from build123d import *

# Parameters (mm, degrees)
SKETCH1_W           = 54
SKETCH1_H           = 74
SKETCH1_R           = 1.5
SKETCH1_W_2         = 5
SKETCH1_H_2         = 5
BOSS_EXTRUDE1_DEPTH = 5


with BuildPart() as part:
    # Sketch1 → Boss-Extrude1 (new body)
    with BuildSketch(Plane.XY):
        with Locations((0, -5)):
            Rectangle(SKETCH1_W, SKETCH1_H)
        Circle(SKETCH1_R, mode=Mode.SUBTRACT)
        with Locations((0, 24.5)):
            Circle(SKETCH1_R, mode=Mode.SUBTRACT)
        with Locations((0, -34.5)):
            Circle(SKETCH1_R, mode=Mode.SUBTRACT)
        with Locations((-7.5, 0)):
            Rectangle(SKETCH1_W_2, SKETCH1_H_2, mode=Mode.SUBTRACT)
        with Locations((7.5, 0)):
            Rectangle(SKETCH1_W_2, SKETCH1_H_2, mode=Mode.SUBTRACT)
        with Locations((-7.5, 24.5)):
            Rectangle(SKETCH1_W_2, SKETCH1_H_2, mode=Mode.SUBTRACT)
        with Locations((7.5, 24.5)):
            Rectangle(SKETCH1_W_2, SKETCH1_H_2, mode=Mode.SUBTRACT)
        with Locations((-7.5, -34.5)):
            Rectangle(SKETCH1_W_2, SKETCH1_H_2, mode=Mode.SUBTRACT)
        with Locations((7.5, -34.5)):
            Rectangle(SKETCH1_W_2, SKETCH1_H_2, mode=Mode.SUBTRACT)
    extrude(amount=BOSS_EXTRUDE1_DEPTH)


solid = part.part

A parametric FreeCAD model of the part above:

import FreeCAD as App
import Part
import Sketcher
from FreeCAD import Vector


def add_polygon(sketch, points):
    """Adds a closed chain of lines whose ends are joined by coincident constraints."""
    first, n = sketch.GeometryCount, len(points)
    for a, b in zip(points, points[1:] + points[:1]):
        sketch.addGeometry(Part.LineSegment(App.Vector(*a, 0), App.Vector(*b, 0)), False)
    for i in range(n):
        sketch.addConstraint(Sketcher.Constraint("Coincident", first + i, 2, first + (i + 1) % n, 1))

doc = App.newDocument("Part")
params = doc.addObject("Spreadsheet::Sheet", "Params")
for row, (alias, value) in enumerate([
    ("sketch1_diameter", "3 mm"),
    ("sketch1_width", "54 mm"),
    ("sketch1_width2", "5 mm"),
    ("sketch1_height", "74 mm"),
    ("pad1_length", "5 mm"),
], start=1):
    params.set(f"A{row}", alias)
    params.set(f"B{row}", "=" + value)
    params.setAlias(f"B{row}", alias)

body = doc.addObject("PartDesign::Body", "Body")

# Sketch on XY plane
sketch1 = body.newObject("Sketcher::SketchObject", "Sketch")
sketch1.AttachmentSupport = (doc.getObject("XY_Plane"), [""])
sketch1.MapMode = "FlatFace"
add_polygon(sketch1, [(-27, 32), (-27, -42), (27, -42), (27, 32)])  # lines 0-3
add_polygon(sketch1, [(-5, -37), (-10, -37), (-10, -32), (-5, -32)])  # lines 4-7
sketch1.addGeometry(Part.Circle(Vector(0, -34.5, 0), Vector(0, 0, 1), 1.5), False)  # 8
add_polygon(sketch1, [(10, -37), (5, -37), (5, -32), (10, -32)])  # lines 9-12
add_polygon(sketch1, [(-5, -2.5), (-10, -2.5), (-10, 2.5), (-5, 2.5)])  # lines 13-16
add_polygon(sketch1, [(-5, 22), (-10, 22), (-10, 27), (-5, 27)])  # lines 17-20
sketch1.addGeometry(Part.Circle(Vector(0, 0, 0), Vector(0, 0, 1), 1.5), False)  # 21
add_polygon(sketch1, [(10, -2.5), (5, -2.5), (5, 2.5), (10, 2.5)])  # lines 22-25
sketch1.addGeometry(Part.Circle(Vector(0, 24.5, 0), Vector(0, 0, 1), 1.5), False)  # 26
add_polygon(sketch1, [(10, 22), (5, 22), (5, 27), (10, 27)])  # lines 27-30
sketch1.addConstraint([
    Sketcher.Constraint("Vertical", 0),
    Sketcher.Constraint("Horizontal", 1),
    Sketcher.Constraint("Vertical", 2),
    Sketcher.Constraint("Horizontal", 3),
    Sketcher.Constraint("Horizontal", 4),
    Sketcher.Constraint("Vertical", 5),
    Sketcher.Constraint("Horizontal", 6),
    Sketcher.Constraint("Vertical", 7),
    Sketcher.Constraint("Horizontal", 9),
    Sketcher.Constraint("Vertical", 10),
    Sketcher.Constraint("Horizontal", 11),
    Sketcher.Constraint("Vertical", 12),
    Sketcher.Constraint("Horizontal", 13),
    Sketcher.Constraint("Vertical", 14),
    Sketcher.Constraint("Horizontal", 15),
    Sketcher.Constraint("Vertical", 16),
    Sketcher.Constraint("Horizontal", 17),
    Sketcher.Constraint("Vertical", 18),
    Sketcher.Constraint("Horizontal", 19),
    Sketcher.Constraint("Vertical", 20),
    Sketcher.Constraint("Horizontal", 22),
    Sketcher.Constraint("Vertical", 23),
    Sketcher.Constraint("Horizontal", 24),
    Sketcher.Constraint("Vertical", 25),
    Sketcher.Constraint("Horizontal", 27),
    Sketcher.Constraint("Vertical", 28),
    Sketcher.Constraint("Horizontal", 29),
    Sketcher.Constraint("Vertical", 30),
    Sketcher.Constraint("Coincident", 21, 3, -1, 1),
    Sketcher.Constraint("Equal", 8, 21),
    Sketcher.Constraint("Equal", 21, 26),
    Sketcher.Constraint("Symmetric", 15, 2, 22, 2, -1, 1),
    Sketcher.Constraint("Symmetric", 13, 2, 24, 2, -1, 1),
    Sketcher.Constraint("Symmetric", 7, 2, 9, 2, -2),
    Sketcher.Constraint("Symmetric", 5, 2, 11, 2, -2),
    Sketcher.Constraint("Symmetric", 20, 2, 27, 2, -2),
    Sketcher.Constraint("Symmetric", 18, 2, 29, 2, -2),
    Sketcher.Constraint("PointOnObject", 8, 3, -2),
    Sketcher.Constraint("PointOnObject", 26, 3, -2),
    Sketcher.Constraint("Horizontal", 16, 2, 22, 2),
    Sketcher.Constraint("Vertical", 5, 2, 13, 2),
    Sketcher.Constraint("Vertical", 7, 2, 15, 2),
    Sketcher.Constraint("Vertical", 14, 2, 17, 2),
    Sketcher.Constraint("Vertical", 16, 2, 19, 2),
    Sketcher.Constraint("Equal", 29, 5),
    Sketcher.Constraint("Equal", 12, 14),
    Sketcher.Constraint("Equal", 16, 18),
    Sketcher.Constraint("Diameter", 8, 3.0),
    Sketcher.Constraint("DistanceX", 1, 1, 1, 2, 54.0),
    Sketcher.Constraint("DistanceX", 4, 2, 4, 1, 5.0),
    Sketcher.Constraint("DistanceY", 0, 2, 0, 1, 74.0),
    Sketcher.Constraint("DistanceX", 0, 2, -1, 1, 27.0),
    Sketcher.Constraint("DistanceY", 0, 2, -1, 1, 42.0),
    Sketcher.Constraint("DistanceX", 4, 2, -1, 1, 10.0),
    Sketcher.Constraint("DistanceY", 4, 2, -1, 1, 37.0),
    Sketcher.Constraint("DistanceY", -1, 1, 17, 2, 22.0),
    Sketcher.Constraint("DistanceY", 8, 3, 26, 3, 59.0),
    Sketcher.Constraint("DistanceY", 13, 2, 26, 3, 27.0),
])
sketch1.setExpression("Constraints[75]", "Params.sketch1_diameter")
sketch1.setExpression("Constraints[76]", "Params.sketch1_width")
sketch1.setExpression("Constraints[77]", "Params.sketch1_width2")
sketch1.setExpression("Constraints[78]", "Params.sketch1_height")
pad1 = body.newObject("PartDesign::Pad", "Pad")
pad1.Profile = sketch1
pad1.setExpression("Length", "Params.pad1_length")

doc.recompute()
